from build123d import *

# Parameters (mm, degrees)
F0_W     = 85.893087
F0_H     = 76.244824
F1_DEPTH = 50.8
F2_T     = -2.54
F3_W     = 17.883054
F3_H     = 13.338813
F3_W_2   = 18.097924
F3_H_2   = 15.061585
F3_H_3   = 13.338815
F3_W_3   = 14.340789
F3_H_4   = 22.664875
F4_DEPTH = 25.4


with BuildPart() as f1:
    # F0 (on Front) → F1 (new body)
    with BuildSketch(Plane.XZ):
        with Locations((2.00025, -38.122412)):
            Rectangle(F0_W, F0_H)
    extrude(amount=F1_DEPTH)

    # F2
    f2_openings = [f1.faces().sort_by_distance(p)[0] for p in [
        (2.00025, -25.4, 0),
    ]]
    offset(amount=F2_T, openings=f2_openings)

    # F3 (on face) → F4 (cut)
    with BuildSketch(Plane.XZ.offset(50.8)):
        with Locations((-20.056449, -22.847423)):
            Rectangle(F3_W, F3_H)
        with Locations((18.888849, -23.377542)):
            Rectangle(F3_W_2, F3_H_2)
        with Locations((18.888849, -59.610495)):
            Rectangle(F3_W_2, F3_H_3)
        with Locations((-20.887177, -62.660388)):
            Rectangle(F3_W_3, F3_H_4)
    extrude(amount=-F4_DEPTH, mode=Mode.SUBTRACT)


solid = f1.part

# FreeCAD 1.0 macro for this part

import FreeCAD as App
import Part
import Sketcher

V = App.Vector


def faces_at(feature, points):
    """Names of the faces that lie closest to the given points."""
    faces = feature.Shape.Faces
    near = lambda p: min(range(len(faces)), key=lambda i: faces[i].distToShape(Part.Vertex(*p))[0])
    return sorted({f"Face{near(p) + 1}" for p in points})


def add_polygon(sketch, points):
    """Adds a closed chain of lines whose ends are joined by coincident constraints."""
    first, n = sketch.GeometryCount, len(points)
    for a, b in zip(points, points[1:] + points[:1]):
        sketch.addGeometry(Part.LineSegment(App.Vector(*a, 0), App.Vector(*b, 0)), False)
    for i in range(n):
        sketch.addConstraint(Sketcher.Constraint("Coincident", first + i, 2, first + (i + 1) % n, 1))

doc = App.newDocument("Part")
params = doc.addObject("Spreadsheet::Sheet", "Params")
for row, (alias, value) in enumerate([
    ("pad1_length", "2 in"),
    ("thickness_wall", "0.1 in"),
    ("pocket1_length", "1 in"),
], start=1):
    params.set(f"A{row}", alias)
    params.set(f"B{row}", "=" + value)
    params.setAlias(f"B{row}", alias)

body = doc.addObject("PartDesign::Body", "Body")

sketch1 = doc.addObject("Sketcher::SketchObject", "Sketch")
body.addObject(sketch1)
sketch1.AttachmentSupport = (doc.XZ_Plane, [""])
sketch1.MapMode = "FlatFace"
add_polygon(sketch1, [(-40.946294, 0), (-40.946294, -76.244824), (44.946793, -76.244824), (44.946793, 0)])
sketch1.addConstraint([
    Sketcher.Constraint("Vertical", 0),
    Sketcher.Constraint("Horizontal", 1),
    Sketcher.Constraint("Vertical", 2),
    Sketcher.Constraint("Horizontal", 3),
    Sketcher.Constraint("PointOnObject", 2, 2, -1),
    Sketcher.Constraint("DistanceX", 1, 1, 1, 2, 85.893087),
    Sketcher.Constraint("DistanceY", 0, 2, 0, 1, 76.244824),
    Sketcher.Constraint("DistanceX", 0, 2, -1, 1, 40.946294),
])
pad1 = doc.addObject("PartDesign::Pad", "Pad")
body.addObject(pad1)
pad1.Profile = sketch1
pad1.setExpression("Length", "Params.pad1_length")
doc.recompute()

thickness = doc.addObject("PartDesign::Thickness", "Thickness")
body.addObject(thickness)
thickness.Base = (pad1, faces_at(pad1, [(2, -25.4, 0)]))
thickness.setExpression("Value", "Params.thickness_wall")
thickness.Reversed = True
thickness.Join = "Arc"

sketch2 = doc.addObject("Sketcher::SketchObject", "Sketch001")
body.addObject(sketch2)
sketch2.AttachmentSupport = (doc.XZ_Plane, [""])
sketch2.MapMode = "FlatFace"
sketch2.AttachmentOffset = App.Placement(V(0, 0, 2 * 25.4), App.Rotation())
add_polygon(sketch2, [(-28.997976, -16.178016), (-28.997976, -29.51683), (-11.114922, -29.51683), (-11.114922, -16.178016)])
add_polygon(sketch2, [(9.839887, -15.846749), (9.839887, -30.908334), (27.937811, -30.908334), (27.937811, -15.846749)])
add_polygon(sketch2, [(9.839887, -52.941088), (9.839887, -66.279903), (27.937811, -66.279903), (27.937811, -52.941088)])
add_polygon(sketch2, [(-28.057572, -51.327951), (-28.057572, -73.992825), (-13.716783, -73.992825), (-13.716783, -51.327951)])
sketch2.addConstraint([
    Sketcher.Constraint("Vertical", 0),
    Sketcher.Constraint("Horizontal", 1),
    Sketcher.Constraint("Vertical", 2),
    Sketcher.Constraint("Horizontal", 3),
    Sketcher.Constraint("Vertical", 4),
    Sketcher.Constraint("Horizontal", 5),
    Sketcher.Constraint("Vertical", 6),
    Sketcher.Constraint("Horizontal", 7),
    Sketcher.Constraint("Vertical", 8),
    Sketcher.Constraint("Horizontal", 9),
    Sketcher.Constraint("Vertical", 10),
    Sketcher.Constraint("Horizontal", 11),
    Sketcher.Constraint("Vertical", 12),
    Sketcher.Constraint("Horizontal", 13),
    Sketcher.Constraint("Vertical", 14),
    Sketcher.Constraint("Horizontal", 15),
    Sketcher.Constraint("Vertical", 7, 2, 8, 2),
    Sketcher.Constraint("Vertical", 6, 2, 9, 2),
    Sketcher.Constraint("DistanceX", 13, 1, 13, 2, 14.340789),
    Sketcher.Constraint("DistanceX", 1, 1, 1, 2, 17.883054),
    Sketcher.Constraint("DistanceX", 5, 1, 5, 2, 18.097924),
    Sketcher.Constraint("DistanceY", 0, 2, 0, 1, 13.338813),
    Sketcher.Constraint("DistanceY", 4, 2, 4, 1, 15.061585),
    Sketcher.Constraint("DistanceY", 8, 2, 8, 1, 13.338815),
    Sketcher.Constraint("DistanceY", 12, 2, 12, 1, 22.664875),
    Sketcher.Constraint("DistanceY", 0, 2, -1, 1, 29.51683),
    Sketcher.Constraint("DistanceX", -1, 1, 5, 2, 27.937811),
    Sketcher.Constraint("DistanceY", 6, 2, -1, 1, 15.846749),
    Sketcher.Constraint("DistanceX", 12, 2, -1, 1, 28.057572),
    Sketcher.Constraint("DistanceY", 14, 2, -1, 1, 51.327951),
    Sketcher.Constraint("DistanceX", 1, 2, 4, 2, 20.954809),
    Sketcher.Constraint("DistanceY", 8, 2, 4, 2, 35.371568),
])
pocket1 = doc.addObject("PartDesign::Pocket", "Pocket")
body.addObject(pocket1)
pocket1.Profile = sketch2
pocket1.setExpression("Length", "Params.pocket1_length")

doc.recompute()
